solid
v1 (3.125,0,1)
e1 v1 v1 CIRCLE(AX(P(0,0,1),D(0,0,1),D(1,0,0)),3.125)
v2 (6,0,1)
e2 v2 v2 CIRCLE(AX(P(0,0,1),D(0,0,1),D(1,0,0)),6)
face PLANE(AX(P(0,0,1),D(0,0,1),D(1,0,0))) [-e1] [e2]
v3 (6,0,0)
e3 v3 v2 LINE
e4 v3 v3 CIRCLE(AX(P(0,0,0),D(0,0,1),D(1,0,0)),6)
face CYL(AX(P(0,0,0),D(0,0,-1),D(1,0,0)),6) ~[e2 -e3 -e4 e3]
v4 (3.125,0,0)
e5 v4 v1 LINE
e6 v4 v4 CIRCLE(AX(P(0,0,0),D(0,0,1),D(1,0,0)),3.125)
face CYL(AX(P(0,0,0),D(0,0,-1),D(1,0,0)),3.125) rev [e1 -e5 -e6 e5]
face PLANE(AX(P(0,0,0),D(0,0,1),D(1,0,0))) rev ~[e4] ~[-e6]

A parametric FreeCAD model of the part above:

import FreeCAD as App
import Part
import Sketcher
Q = App.Units.Quantity

doc = App.newDocument("Part")
body = doc.addObject("PartDesign::Body", "Body")

# Sketch on XY plane
sketch1 = doc.addObject("Sketcher::SketchObject", "Sketch")
body.addObject(sketch1)
sketch1.AttachmentSupport = (doc.XY_Plane, [""])
sketch1.MapMode = "FlatFace"
sketch1.addGeometry([
    Part.Circle(App.Vector(0, 0, 0), App.Vector(0, 0, 1), 6),
    Part.Circle(App.Vector(0, 0, 0), App.Vector(0, 0, 1), 3.1),
], False)
sketch1.addConstraint([
    Sketcher.Constraint("Coincident", 0, 3, -1, 1),
    Sketcher.Constraint("Coincident", 1, 3, -1, 1),
    Sketcher.Constraint("Diameter", 0, Q("12 mm")),
    Sketcher.Constraint("Diameter", 1, Q("6.25 mm")),
])
pad1 = doc.addObject("PartDesign::Pad", "Pad")
body.addObject(pad1)
pad1.Profile = sketch1
pad1.Length = 1

doc.recompute()
